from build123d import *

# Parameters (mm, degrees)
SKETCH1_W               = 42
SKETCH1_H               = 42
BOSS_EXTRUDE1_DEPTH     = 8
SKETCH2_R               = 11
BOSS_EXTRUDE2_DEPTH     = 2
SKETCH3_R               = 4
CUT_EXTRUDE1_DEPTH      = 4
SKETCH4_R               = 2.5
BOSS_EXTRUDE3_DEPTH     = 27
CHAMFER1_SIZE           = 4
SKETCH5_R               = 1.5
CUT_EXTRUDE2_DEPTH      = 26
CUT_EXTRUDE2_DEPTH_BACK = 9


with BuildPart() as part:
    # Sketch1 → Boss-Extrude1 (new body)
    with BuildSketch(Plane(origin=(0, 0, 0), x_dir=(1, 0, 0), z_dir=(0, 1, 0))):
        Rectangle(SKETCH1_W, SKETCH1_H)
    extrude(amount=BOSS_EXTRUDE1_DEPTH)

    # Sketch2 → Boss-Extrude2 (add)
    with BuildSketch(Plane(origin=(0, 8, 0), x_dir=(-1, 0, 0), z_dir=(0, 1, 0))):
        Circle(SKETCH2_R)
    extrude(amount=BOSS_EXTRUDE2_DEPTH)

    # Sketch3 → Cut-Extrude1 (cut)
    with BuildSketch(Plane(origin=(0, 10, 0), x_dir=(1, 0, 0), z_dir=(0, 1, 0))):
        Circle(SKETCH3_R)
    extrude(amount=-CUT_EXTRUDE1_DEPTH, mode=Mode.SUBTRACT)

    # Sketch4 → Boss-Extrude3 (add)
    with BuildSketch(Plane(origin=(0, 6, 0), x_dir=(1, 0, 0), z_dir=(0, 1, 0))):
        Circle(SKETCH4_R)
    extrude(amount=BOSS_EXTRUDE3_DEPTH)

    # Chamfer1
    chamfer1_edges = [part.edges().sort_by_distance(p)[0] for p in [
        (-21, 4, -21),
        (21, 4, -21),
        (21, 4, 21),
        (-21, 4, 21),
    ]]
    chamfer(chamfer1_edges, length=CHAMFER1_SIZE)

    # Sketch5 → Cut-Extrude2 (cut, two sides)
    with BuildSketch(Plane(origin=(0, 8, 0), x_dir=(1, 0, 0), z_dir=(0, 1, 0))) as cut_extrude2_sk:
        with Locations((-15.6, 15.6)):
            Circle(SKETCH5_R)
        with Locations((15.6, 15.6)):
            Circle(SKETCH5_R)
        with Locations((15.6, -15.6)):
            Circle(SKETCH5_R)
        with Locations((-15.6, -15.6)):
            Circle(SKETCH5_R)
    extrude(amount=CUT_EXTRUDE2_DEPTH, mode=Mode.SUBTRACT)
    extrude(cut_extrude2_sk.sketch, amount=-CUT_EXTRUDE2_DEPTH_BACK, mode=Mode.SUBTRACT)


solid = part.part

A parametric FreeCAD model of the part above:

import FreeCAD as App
import Part
import Sketcher

V = App.Vector
Q = App.Units.Quantity


def edges_at(feature, points):
    """Names of the edges that pass closest to the given points."""
    edges = feature.Shape.Edges
    near = lambda p: min(range(len(edges)), key=lambda i: edges[i].distToShape(Part.Vertex(*p))[0])
    return sorted({f"Edge{near(p) + 1}" for p in points})


def add_polygon(sketch, points):
    """Adds a closed chain of lines whose ends are joined by coincident constraints."""
    first, n = sketch.GeometryCount, len(points)
    for a, b in zip(points, points[1:] + points[:1]):
        sketch.addGeometry(Part.LineSegment(App.Vector(*a, 0), App.Vector(*b, 0)), False)
    for i in range(n):
        sketch.addConstraint(Sketcher.Constraint("Coincident", first + i, 2, first + (i + 1) % n, 1))

doc = App.newDocument("Part")
body = doc.addObject("PartDesign::Body", "Body")

sketch1 = body.newObject("Sketcher::SketchObject", "Sketch")
sketch1.AttachmentSupport = (doc.getObject("XZ_Plane"), [""])
sketch1.MapMode = "FlatFace"
add_polygon(sketch1, [(-21, -21), (-21, 21), (21, 21), (21, -21)])
sketch1.addConstraint(Sketcher.Constraint("Vertical", 0))
sketch1.addConstraint(Sketcher.Constraint("Horizontal", 1))
sketch1.addConstraint(Sketcher.Constraint("Vertical", 2))
sketch1.addConstraint(Sketcher.Constraint("Horizontal", 3))
sketch1.addConstraint(Sketcher.Constraint("Symmetric", 0, 2, 2, 2, -1, 1))
sketch1.addConstraint(Sketcher.Constraint("Equal", 3, 0))
sketch1.addConstraint(Sketcher.Constraint("DistanceX", 1, 1, 1, 2, Q("42 mm")))
pad1 = body.newObject("PartDesign::Pad", "Pad")
pad1.Profile = sketch1
pad1.Length = 8
pad1.Reversed = True

sketch2 = body.newObject("Sketcher::SketchObject", "Sketch001")
sketch2.AttachmentSupport = (doc.getObject("XZ_Plane"), [""])
sketch2.MapMode = "FlatFace"
sketch2.AttachmentOffset = App.Placement(V(0, 0, -8), App.Rotation())
sketch2.addGeometry(Part.Circle(V(0, 0, 0), V(0, 0, 1), 11), False)
sketch2.addConstraint(Sketcher.Constraint("Coincident", 0, 3, -1, 1))
sketch2.addConstraint(Sketcher.Constraint("Diameter", 0, Q("22 mm")))
pad2 = body.newObject("PartDesign::Pad", "Pad001")
pad2.Profile = sketch2
pad2.Length = 2
pad2.Reversed = True

sketch3 = body.newObject("Sketcher::SketchObject", "Sketch002")
sketch3.AttachmentSupport = (doc.getObject("XZ_Plane"), [""])
sketch3.MapMode = "FlatFace"
sketch3.AttachmentOffset = App.Placement(V(0, 0, -10), App.Rotation())
sketch3.addGeometry(Part.Circle(V(0, 0, 0), V(0, 0, 1), 4), False)
sketch3.addConstraint(Sketcher.Constraint("Coincident", 0, 3, -1, 1))
sketch3.addConstraint(Sketcher.Constraint("Diameter", 0, Q("8 mm")))
pocket1 = body.newObject("PartDesign::Pocket", "Pocket")
pocket1.Profile = sketch3
pocket1.Length = 4
pocket1.Reversed = True

sketch4 = body.newObject("Sketcher::SketchObject", "Sketch003")
sketch4.AttachmentSupport = (doc.getObject("XZ_Plane"), [""])
sketch4.MapMode = "FlatFace"
sketch4.AttachmentOffset = App.Placement(V(0, 0, -6), App.Rotation())
sketch4.addGeometry(Part.Circle(V(0, 0, 0), V(0, 0, 1), 2.5), False)
sketch4.addConstraint(Sketcher.Constraint("Coincident", 0, 3, -1, 1))
sketch4.addConstraint(Sketcher.Constraint("Diameter", 0, Q("5 mm")))
pad3 = body.newObject("PartDesign::Pad", "Pad002")
pad3.Profile = sketch4
pad3.Length = 27
pad3.Reversed = True
doc.recompute()

chamfer = body.newObject("PartDesign::Chamfer", "Chamfer")
chamfer.Base = (pad3, edges_at(pad3, [
    (-21, 4, -21),
    (21, 4, -21),
    (21, 4, 21),
    (-21, 4, 21),
]))
chamfer.Size = 4

sketch5 = body.newObject("Sketcher::SketchObject", "Sketch004")
sketch5.AttachmentSupport = (doc.getObject("XZ_Plane"), [""])
sketch5.MapMode = "FlatFace"
sketch5.AttachmentOffset = App.Placement(V(0, 0, -8), App.Rotation())
sketch5.addGeometry(Part.Circle(V(-15.6, -15.6, 0), V(0, 0, 1), 1.5), False)
sketch5.addGeometry(Part.Circle(V(15.6, -15.6, 0), V(0, 0, 1), 1.5), False)
sketch5.addGeometry(Part.Circle(V(15.6, 15.6, 0), V(0, 0, 1), 1.5), False)
sketch5.addGeometry(Part.Circle(V(-15.6, 15.6, 0), V(0, 0, 1), 1.5), False)
sketch5.addConstraint(Sketcher.Constraint("Equal", 0, 1))
sketch5.addConstraint(Sketcher.Constraint("Equal", 1, 2))
sketch5.addConstraint(Sketcher.Constraint("Equal", 2, 3))
sketch5.addConstraint(Sketcher.Constraint("Symmetric", 0, 3, 2, 3, -1, 1))
sketch5.addConstraint(Sketcher.Constraint("Symmetric", 1, 3, 3, 3, -1, 1))
sketch5.addConstraint(Sketcher.Constraint("Symmetric", 0, 3, 1, 3, -2))
sketch5.addConstraint(Sketcher.Constraint("Diameter", 0, Q("3 mm")))
sketch5.addConstraint(Sketcher.Constraint("DistanceX", 0, 3, -1, 1, Q("15.6 mm")))
sketch5.addConstraint(Sketcher.Constraint("DistanceY", 0, 3, -1, 1, Q("15.6 mm")))
pocket2 = body.newObject("PartDesign::Pocket", "Pocket001")
pocket2.Profile = sketch5
pocket2.Type = "ThroughAll"
pocket2.Midplane = True

doc.recompute()
